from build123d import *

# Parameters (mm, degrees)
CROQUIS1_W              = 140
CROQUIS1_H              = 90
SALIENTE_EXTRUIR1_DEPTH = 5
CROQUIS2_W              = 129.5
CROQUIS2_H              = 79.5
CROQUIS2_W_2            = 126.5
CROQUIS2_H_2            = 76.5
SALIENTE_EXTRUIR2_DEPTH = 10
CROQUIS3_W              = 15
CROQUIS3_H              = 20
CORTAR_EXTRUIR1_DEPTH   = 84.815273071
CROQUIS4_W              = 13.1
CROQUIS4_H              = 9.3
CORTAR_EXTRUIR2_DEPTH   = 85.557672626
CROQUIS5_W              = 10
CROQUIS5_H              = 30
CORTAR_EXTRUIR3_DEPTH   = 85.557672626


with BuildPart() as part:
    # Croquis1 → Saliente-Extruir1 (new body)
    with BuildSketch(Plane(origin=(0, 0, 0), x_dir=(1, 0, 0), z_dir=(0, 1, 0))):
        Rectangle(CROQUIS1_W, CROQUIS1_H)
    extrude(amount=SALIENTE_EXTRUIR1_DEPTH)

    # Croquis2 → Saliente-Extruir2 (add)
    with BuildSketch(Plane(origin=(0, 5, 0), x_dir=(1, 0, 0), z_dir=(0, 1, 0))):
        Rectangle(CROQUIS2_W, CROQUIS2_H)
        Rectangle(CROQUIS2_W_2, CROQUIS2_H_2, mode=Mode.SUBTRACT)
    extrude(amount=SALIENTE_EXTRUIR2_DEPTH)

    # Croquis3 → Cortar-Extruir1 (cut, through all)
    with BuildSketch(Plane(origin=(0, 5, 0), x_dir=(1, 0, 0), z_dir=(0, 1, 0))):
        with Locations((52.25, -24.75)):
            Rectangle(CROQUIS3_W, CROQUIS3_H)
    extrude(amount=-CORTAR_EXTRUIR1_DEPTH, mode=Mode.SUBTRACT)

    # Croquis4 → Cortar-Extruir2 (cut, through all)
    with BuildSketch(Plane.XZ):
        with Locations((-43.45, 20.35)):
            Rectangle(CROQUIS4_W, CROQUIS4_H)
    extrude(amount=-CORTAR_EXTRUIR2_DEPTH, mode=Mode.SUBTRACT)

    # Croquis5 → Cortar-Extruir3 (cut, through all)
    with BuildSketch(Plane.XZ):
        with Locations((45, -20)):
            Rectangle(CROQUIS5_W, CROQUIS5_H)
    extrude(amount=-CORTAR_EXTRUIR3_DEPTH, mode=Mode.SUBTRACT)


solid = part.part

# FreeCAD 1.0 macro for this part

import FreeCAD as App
import Part
import Sketcher
from FreeCAD import Vector
Q = App.Units.Quantity

doc = App.newDocument("Part")
body = doc.addObject("PartDesign::Body", "Body")

# Sketch on XZ plane
sketch1 = body.newObject("Sketcher::SketchObject", "Sketch")
sketch1.AttachmentSupport = (doc.getObject("XZ_Plane"), [""])
sketch1.MapMode = "FlatFace"
sketch1.addGeometry([
    Part.LineSegment(Vector(-70, -45, 0), Vector(-70, 45, 0)),
    Part.LineSegment(Vector(-70, 45, 0), Vector(70, 45, 0)),
    Part.LineSegment(Vector(70, 45, 0), Vector(70, -45, 0)),
    Part.LineSegment(Vector(70, -45, 0), Vector(-70, -45, 0)),
], False)
sketch1.addConstraint([
    Sketcher.Constraint("Coincident", 0, 2, 1, 1),
    Sketcher.Constraint("Coincident", 1, 2, 2, 1),
    Sketcher.Constraint("Coincident", 2, 2, 3, 1),
    Sketcher.Constraint("Coincident", 3, 2, 0, 1),
    Sketcher.Constraint("Vertical", 0),
    Sketcher.Constraint("Horizontal", 1),
    Sketcher.Constraint("Vertical", 2),
    Sketcher.Constraint("Horizontal", 3),
    Sketcher.Constraint("Symmetric", 0, 2, 2, 2, -1, 1),
    Sketcher.Constraint("DistanceX", 1, 1, 1, 2, Q("140 mm")),
    Sketcher.Constraint("DistanceY", 0, 1, 0, 2, Q("90 mm")),
])
pad1 = body.newObject("PartDesign::Pad", "Pad")
pad1.Profile = sketch1
pad1.Length = 5
pad1.Reversed = True

# Sketch on XZ plane
sketch2 = body.newObject("Sketcher::SketchObject", "Sketch001")
sketch2.AttachmentSupport = (doc.getObject("XZ_Plane"), [""])
sketch2.MapMode = "FlatFace"
sketch2.AttachmentOffset = App.Placement(Vector(0, 0, -5), App.Rotation())
sketch2.addGeometry([
    Part.LineSegment(Vector(-64.75, -39.75, 0), Vector(-64.75, 39.75, 0)),  # 0
    Part.LineSegment(Vector(-64.75, 39.75, 0), Vector(64.75, 39.75, 0)),  # 1
    Part.LineSegment(Vector(64.75, 39.75, 0), Vector(64.75, -39.75, 0)),  # 2
    Part.LineSegment(Vector(64.75, -39.75, 0), Vector(-64.75, -39.75, 0)),  # 3
    Part.LineSegment(Vector(63.25, 38.25, 0), Vector(-63.25, 38.25, 0)),  # 4
    Part.LineSegment(Vector(-63.25, 38.25, 0), Vector(-63.25, -38.25, 0)),  # 5
    Part.LineSegment(Vector(-63.25, -38.25, 0), Vector(63.25, -38.25, 0)),  # 6
    Part.LineSegment(Vector(63.25, -38.25, 0), Vector(63.25, 38.25, 0)),  # 7
], False)
sketch2.addConstraint([
    Sketcher.Constraint("Coincident", 0, 2, 1, 1),
    Sketcher.Constraint("Coincident", 1, 2, 2, 1),
    Sketcher.Constraint("Coincident", 2, 2, 3, 1),
    Sketcher.Constraint("Coincident", 3, 2, 0, 1),
    Sketcher.Constraint("Coincident", 4, 2, 5, 1),
    Sketcher.Constraint("Coincident", 5, 2, 6, 1),
    Sketcher.Constraint("Coincident", 6, 2, 7, 1),
    Sketcher.Constraint("Coincident", 7, 2, 4, 1),
    Sketcher.Constraint("Vertical", 0),
    Sketcher.Constraint("Horizontal", 1),
    Sketcher.Constraint("Vertical", 2),
    Sketcher.Constraint("Horizontal", 3),
    Sketcher.Constraint("Horizontal", 4),
    Sketcher.Constraint("Vertical", 5),
    Sketcher.Constraint("Horizontal", 6),
    Sketcher.Constraint("Vertical", 7),
    Sketcher.Constraint("Symmetric", 0, 2, 2, 2, -1, 1),
    Sketcher.Constraint("Symmetric", 4, 2, 6, 2, -1, 1),
    Sketcher.Constraint("DistanceX", 1, 1, 1, 2, Q("129.5 mm")),
    Sketcher.Constraint("DistanceX", 4, 2, 4, 1, Q("126.5 mm")),
    Sketcher.Constraint("DistanceY", 0, 1, 0, 2, Q("79.5 mm")),
    Sketcher.Constraint("DistanceY", 5, 2, 5, 1, Q("76.5 mm")),
])
pad2 = body.newObject("PartDesign::Pad", "Pad001")
pad2.Profile = sketch2
pad2.Length = 10
pad2.Reversed = True

# Sketch on XZ plane
sketch3 = body.newObject("Sketcher::SketchObject", "Sketch002")
sketch3.AttachmentSupport = (doc.getObject("XZ_Plane"), [""])
sketch3.MapMode = "FlatFace"
sketch3.AttachmentOffset = App.Placement(Vector(0, 0, -5), App.Rotation())
sketch3.addGeometry([
    Part.LineSegment(Vector(44.75, 14.75, 0), Vector(44.75, 34.75, 0)),
    Part.LineSegment(Vector(44.75, 34.75, 0), Vector(59.75, 34.75, 0)),
    Part.LineSegment(Vector(59.75, 34.75, 0), Vector(59.75, 14.75, 0)),
    Part.LineSegment(Vector(59.75, 14.75, 0), Vector(44.75, 14.75, 0)),
], False)
sketch3.addConstraint([
    Sketcher.Constraint("Coincident", 0, 2, 1, 1),
    Sketcher.Constraint("Coincident", 1, 2, 2, 1),
    Sketcher.Constraint("Coincident", 2, 2, 3, 1),
    Sketcher.Constraint("Coincident", 3, 2, 0, 1),
    Sketcher.Constraint("Vertical", 0),
    Sketcher.Constraint("Horizontal", 1),
    Sketcher.Constraint("Vertical", 2),
    Sketcher.Constraint("Horizontal", 3),
    Sketcher.Constraint("DistanceX", 1, 1, 1, 2, Q("15 mm")),
    Sketcher.Constraint("DistanceY", 0, 1, 0, 2, Q("20 mm")),
    Sketcher.Constraint("DistanceX", -1, 1, 0, 2, Q("44.75 mm")),
    Sketcher.Constraint("DistanceY", -1, 1, 0, 2, Q("34.75 mm")),
])
pocket1 = body.newObject("PartDesign::Pocket", "Pocket")
pocket1.Profile = sketch3
pocket1.Type = "ThroughAll"
pocket1.Reversed = True

# Sketch on XZ plane
sketch4 = body.newObject("Sketcher::SketchObject", "Sketch003")
sketch4.AttachmentSupport = (doc.getObject("XZ_Plane"), [""])
sketch4.MapMode = "FlatFace"
sketch4.addGeometry([
    Part.LineSegment(Vector(-50, 25, 0), Vector(-50, 15.7, 0)),
    Part.LineSegment(Vector(-50, 15.7, 0), Vector(-36.9, 15.7, 0)),
    Part.LineSegment(Vector(-36.9, 15.7, 0), Vector(-36.9, 25, 0)),
    Part.LineSegment(Vector(-36.9, 25, 0), Vector(-50, 25, 0)),
], False)
sketch4.addConstraint([
    Sketcher.Constraint("Coincident", 0, 2, 1, 1),
    Sketcher.Constraint("Coincident", 1, 2, 2, 1),
    Sketcher.Constraint("Coincident", 2, 2, 3, 1),
    Sketcher.Constraint("Coincident", 3, 2, 0, 1),
    Sketcher.Constraint("Vertical", 0),
    Sketcher.Constraint("Horizontal", 1),
    Sketcher.Constraint("Vertical", 2),
    Sketcher.Constraint("Horizontal", 3),
    Sketcher.Constraint("DistanceX", 1, 1, 1, 2, Q("13.1 mm")),
    Sketcher.Constraint("DistanceY", 0, 2, 0, 1, Q("9.3 mm")),
    Sketcher.Constraint("DistanceX", 0, 2, -1, 1, Q("50 mm")),
    Sketcher.Constraint("DistanceY", -1, 1, 2, 2, Q("25 mm")),
])
pocket2 = body.newObject("PartDesign::Pocket", "Pocket001")
pocket2.Profile = sketch4
pocket2.Type = "ThroughAll"

# Sketch on XZ plane
sketch5 = body.newObject("Sketcher::SketchObject", "Sketch004")
sketch5.AttachmentSupport = (doc.getObject("XZ_Plane"), [""])
sketch5.MapMode = "FlatFace"
sketch5.addGeometry([
    Part.LineSegment(Vector(40, -5, 0), Vector(40, -35, 0)),
    Part.LineSegment(Vector(40, -35, 0), Vector(50, -35, 0)),
    Part.LineSegment(Vector(50, -35, 0), Vector(50, -5, 0)),
    Part.LineSegment(Vector(50, -5, 0), Vector(40, -5, 0)),
], False)
sketch5.addConstraint([
    Sketcher.Constraint("Coincident", 0, 2, 1, 1),
    Sketcher.Constraint("Coincident", 1, 2, 2, 1),
    Sketcher.Constraint("Coincident", 2, 2, 3, 1),
    Sketcher.Constraint("Coincident", 3, 2, 0, 1),
    Sketcher.Constraint("Vertical", 0),
    Sketcher.Constraint("Horizontal", 1),
    Sketcher.Constraint("Vertical", 2),
    Sketcher.Constraint("Horizontal", 3),
    Sketcher.Constraint("DistanceX", 1, 1, 1, 2, Q("10 mm")),
    Sketcher.Constraint("DistanceY", 0, 2, 0, 1, Q("30 mm")),
    Sketcher.Constraint("DistanceX", -1, 1, 0, 2, Q("40 mm")),
    Sketcher.Constraint("DistanceY", 0, 2, -1, 1, Q("35 mm")),
])
pocket3 = body.newObject("PartDesign::Pocket", "Pocket002")
pocket3.Profile = sketch5
pocket3.Type = "ThroughAll"

doc.recompute()
